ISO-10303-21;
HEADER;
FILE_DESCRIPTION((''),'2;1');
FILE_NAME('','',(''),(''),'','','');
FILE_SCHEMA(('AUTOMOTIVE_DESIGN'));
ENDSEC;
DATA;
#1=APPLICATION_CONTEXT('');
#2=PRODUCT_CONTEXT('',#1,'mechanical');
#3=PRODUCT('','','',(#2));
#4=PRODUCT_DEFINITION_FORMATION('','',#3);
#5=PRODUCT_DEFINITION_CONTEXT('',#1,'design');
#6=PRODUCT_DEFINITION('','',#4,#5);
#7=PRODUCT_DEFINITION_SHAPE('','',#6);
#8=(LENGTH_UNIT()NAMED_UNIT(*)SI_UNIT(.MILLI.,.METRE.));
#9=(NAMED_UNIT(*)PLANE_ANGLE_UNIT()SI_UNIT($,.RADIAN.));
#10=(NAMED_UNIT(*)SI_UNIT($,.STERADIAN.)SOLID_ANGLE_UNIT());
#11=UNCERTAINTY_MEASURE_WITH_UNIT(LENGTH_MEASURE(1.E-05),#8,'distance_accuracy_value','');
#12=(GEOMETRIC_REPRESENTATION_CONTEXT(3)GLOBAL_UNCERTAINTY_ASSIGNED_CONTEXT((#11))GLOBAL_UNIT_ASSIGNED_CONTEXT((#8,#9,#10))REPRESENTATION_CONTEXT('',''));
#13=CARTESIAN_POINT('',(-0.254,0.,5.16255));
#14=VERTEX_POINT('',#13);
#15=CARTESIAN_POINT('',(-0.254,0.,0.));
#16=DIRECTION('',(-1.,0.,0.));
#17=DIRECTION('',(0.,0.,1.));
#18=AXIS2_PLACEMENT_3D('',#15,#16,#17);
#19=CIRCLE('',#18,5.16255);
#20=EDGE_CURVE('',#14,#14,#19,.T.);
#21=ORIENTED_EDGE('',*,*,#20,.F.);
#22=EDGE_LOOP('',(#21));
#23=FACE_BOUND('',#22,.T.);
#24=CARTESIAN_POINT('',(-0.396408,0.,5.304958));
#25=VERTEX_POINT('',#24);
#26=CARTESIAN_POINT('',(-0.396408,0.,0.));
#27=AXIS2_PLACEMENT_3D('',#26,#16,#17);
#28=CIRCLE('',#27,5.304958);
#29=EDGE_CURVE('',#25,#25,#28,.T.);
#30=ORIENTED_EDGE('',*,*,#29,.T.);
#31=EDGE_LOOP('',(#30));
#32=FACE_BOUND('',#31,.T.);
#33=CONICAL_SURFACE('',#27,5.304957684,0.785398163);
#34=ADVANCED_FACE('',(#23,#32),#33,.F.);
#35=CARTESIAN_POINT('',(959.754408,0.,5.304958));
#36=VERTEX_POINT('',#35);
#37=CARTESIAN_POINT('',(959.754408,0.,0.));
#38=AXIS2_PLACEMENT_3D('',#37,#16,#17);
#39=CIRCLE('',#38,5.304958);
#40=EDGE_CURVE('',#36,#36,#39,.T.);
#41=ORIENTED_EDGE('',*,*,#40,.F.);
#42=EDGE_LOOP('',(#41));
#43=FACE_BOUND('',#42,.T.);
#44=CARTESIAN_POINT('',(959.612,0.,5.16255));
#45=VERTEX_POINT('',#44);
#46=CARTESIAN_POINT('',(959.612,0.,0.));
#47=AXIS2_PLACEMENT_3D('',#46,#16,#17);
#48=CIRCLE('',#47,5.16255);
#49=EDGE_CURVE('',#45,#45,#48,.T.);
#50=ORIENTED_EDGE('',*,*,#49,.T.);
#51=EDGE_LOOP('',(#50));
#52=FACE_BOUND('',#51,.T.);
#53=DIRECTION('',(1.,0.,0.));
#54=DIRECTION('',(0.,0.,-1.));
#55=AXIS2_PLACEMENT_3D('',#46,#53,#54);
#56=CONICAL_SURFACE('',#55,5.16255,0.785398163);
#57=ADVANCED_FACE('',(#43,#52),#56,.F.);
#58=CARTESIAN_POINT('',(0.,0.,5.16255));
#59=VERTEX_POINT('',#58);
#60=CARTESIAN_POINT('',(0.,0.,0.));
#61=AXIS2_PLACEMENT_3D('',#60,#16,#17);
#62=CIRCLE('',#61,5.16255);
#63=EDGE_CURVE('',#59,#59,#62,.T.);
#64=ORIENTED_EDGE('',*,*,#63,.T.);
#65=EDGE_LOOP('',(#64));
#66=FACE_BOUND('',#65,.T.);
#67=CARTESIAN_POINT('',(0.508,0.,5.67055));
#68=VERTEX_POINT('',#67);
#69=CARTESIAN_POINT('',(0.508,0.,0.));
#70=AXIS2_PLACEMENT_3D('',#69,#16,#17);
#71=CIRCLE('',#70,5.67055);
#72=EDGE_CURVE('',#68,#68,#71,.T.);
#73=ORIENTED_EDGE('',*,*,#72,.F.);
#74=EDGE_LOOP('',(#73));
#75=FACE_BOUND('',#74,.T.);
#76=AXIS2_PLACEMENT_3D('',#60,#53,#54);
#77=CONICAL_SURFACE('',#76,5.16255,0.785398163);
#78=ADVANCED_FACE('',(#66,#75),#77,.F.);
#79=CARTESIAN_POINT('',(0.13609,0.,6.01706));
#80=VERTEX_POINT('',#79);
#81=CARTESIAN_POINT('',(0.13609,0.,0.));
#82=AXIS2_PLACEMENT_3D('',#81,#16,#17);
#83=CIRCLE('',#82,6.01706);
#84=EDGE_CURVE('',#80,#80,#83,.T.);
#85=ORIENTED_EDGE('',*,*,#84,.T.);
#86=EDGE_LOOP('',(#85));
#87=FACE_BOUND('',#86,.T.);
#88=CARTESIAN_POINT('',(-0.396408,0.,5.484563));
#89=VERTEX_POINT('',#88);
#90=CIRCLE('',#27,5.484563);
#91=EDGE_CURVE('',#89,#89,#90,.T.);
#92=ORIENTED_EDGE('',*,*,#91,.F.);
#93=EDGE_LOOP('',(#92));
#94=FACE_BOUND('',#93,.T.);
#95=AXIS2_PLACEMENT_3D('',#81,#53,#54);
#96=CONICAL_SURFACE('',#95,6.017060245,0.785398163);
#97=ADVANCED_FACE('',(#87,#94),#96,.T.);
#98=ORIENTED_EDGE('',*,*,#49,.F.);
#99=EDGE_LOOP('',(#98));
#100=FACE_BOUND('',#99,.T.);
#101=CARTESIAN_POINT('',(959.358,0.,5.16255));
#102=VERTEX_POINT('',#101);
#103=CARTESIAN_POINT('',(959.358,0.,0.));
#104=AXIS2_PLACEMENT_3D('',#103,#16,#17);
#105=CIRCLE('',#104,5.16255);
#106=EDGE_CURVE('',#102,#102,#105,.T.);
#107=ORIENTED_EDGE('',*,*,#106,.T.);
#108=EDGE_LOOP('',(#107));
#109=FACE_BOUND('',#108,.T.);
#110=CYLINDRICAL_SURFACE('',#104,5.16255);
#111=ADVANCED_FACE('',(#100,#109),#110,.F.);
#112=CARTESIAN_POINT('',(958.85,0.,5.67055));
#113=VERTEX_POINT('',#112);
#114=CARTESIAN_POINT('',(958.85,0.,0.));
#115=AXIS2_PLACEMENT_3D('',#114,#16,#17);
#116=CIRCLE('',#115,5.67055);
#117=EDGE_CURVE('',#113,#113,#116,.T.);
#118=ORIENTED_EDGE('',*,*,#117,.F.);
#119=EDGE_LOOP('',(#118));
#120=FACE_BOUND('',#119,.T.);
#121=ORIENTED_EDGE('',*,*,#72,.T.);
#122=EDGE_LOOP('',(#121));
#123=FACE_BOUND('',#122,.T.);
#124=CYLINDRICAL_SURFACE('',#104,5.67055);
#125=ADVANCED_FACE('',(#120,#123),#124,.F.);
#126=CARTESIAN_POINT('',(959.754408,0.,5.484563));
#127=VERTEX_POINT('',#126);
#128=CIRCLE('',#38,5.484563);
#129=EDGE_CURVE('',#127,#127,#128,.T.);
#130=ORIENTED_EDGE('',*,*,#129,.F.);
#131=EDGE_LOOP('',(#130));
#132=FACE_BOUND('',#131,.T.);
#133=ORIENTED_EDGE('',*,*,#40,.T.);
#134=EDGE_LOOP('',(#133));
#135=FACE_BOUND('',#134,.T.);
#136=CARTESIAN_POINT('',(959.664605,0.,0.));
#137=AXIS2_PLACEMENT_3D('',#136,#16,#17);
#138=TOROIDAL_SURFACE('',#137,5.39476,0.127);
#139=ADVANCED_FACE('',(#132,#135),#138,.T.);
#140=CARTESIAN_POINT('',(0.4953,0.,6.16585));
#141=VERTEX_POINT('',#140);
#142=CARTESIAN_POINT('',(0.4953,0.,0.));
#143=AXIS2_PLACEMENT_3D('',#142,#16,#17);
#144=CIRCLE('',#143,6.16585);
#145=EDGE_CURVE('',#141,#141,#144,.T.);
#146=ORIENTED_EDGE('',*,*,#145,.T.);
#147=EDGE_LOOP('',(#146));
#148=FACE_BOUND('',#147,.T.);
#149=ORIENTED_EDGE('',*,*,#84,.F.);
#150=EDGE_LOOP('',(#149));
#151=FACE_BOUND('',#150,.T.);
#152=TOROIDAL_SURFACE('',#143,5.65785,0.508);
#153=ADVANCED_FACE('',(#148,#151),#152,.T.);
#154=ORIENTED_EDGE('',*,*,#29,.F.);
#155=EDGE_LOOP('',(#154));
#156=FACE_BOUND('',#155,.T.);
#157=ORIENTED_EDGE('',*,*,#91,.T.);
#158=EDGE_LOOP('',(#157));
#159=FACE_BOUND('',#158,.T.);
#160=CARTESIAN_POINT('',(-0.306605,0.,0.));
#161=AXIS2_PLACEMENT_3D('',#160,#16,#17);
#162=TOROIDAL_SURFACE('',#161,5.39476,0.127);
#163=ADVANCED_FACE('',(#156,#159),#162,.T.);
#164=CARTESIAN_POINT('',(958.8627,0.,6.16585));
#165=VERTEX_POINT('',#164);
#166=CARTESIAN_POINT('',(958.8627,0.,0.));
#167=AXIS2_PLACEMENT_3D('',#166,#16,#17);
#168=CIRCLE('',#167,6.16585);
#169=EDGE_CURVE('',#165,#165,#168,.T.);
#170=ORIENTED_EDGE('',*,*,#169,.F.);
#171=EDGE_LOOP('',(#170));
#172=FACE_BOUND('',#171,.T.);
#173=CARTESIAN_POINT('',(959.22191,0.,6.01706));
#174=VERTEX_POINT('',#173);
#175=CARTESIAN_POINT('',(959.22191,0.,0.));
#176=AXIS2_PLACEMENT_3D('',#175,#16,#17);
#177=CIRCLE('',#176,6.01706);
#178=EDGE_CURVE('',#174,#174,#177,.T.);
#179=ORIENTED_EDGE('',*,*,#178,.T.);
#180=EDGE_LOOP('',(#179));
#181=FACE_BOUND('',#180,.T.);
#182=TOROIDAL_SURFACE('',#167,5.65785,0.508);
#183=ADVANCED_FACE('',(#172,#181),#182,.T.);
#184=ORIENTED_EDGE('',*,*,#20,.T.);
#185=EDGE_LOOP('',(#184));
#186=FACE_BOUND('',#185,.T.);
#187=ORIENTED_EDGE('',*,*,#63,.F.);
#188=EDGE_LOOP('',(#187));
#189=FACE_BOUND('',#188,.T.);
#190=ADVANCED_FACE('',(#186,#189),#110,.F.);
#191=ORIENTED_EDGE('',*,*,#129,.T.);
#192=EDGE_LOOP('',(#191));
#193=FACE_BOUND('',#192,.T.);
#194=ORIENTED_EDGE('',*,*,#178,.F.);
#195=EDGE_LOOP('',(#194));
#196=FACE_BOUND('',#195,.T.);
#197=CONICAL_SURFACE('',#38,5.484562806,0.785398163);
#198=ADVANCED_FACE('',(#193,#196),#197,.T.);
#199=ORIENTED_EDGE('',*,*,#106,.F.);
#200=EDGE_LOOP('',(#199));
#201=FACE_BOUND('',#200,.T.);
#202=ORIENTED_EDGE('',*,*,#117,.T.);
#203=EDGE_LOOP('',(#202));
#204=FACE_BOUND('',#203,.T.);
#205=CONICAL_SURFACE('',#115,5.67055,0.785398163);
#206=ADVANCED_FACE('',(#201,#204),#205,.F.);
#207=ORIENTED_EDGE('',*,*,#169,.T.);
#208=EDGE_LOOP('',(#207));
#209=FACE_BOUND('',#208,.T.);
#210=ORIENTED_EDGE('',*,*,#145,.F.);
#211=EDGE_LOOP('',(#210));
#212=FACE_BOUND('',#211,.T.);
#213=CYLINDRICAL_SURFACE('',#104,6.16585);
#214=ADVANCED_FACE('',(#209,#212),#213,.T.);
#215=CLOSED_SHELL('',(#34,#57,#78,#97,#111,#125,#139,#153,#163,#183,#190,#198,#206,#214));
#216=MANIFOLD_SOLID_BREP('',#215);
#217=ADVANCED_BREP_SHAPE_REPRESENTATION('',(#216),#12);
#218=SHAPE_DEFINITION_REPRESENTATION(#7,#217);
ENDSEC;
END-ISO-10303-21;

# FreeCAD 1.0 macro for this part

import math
import FreeCAD as App
import Part
import Sketcher
from FreeCAD import Vector
Q = App.Units.Quantity

doc = App.newDocument("Part")
body = doc.addObject("PartDesign::Body", "Body")

sketch1 = body.newObject("Sketcher::SketchObject", "Sketch")
sketch1.AttachmentSupport = (doc.getObject("XY_Plane"), [""])
sketch1.MapMode = "FlatFace"
sketch1.addGeometry(Part.LineSegment(Vector(-0.4, 5.3, 0), Vector(-0.25, 5.16, 0)), False)
sketch1.addGeometry(Part.LineSegment(Vector(-0.25, 5.16, 0), Vector(0, 5.16, 0)), False)
sketch1.addGeometry(Part.LineSegment(Vector(0, 5.16, 0), Vector(0.51, 5.67, 0)), False)
sketch1.addGeometry(Part.LineSegment(Vector(0.51, 5.67, 0), Vector(958.85, 5.67, 0)), False)
sketch1.addGeometry(Part.LineSegment(Vector(958.85, 5.67, 0), Vector(959.36, 5.16, 0)), False)
sketch1.addGeometry(Part.LineSegment(Vector(959.36, 5.16, 0), Vector(959.61, 5.16, 0)), False)
sketch1.addGeometry(Part.LineSegment(Vector(959.61, 5.16, 0), Vector(959.75, 5.3, 0)), False)
sketch1.addGeometry(Part.ArcOfCircle(Part.Circle(Vector(959.66, 5.39, 0), Vector(0, 0, 1), 0.13), math.radians(-45), math.radians(45)), False)
sketch1.addGeometry(Part.LineSegment(Vector(959.75, 5.48, 0), Vector(959.22, 6.02, 0)), False)
sketch1.addGeometry(Part.ArcOfCircle(Part.Circle(Vector(958.86, 5.66, 0), Vector(0, 0, 1), 0.51), math.radians(45), math.radians(90)), False)
sketch1.addGeometry(Part.LineSegment(Vector(958.86, 6.17, 0), Vector(0.5, 6.17, 0)), False)
sketch1.addGeometry(Part.ArcOfCircle(Part.Circle(Vector(0.5, 5.66, 0), Vector(0, 0, 1), 0.51), math.radians(90), math.radians(135)), False)
sketch1.addGeometry(Part.LineSegment(Vector(0.14, 6.02, 0), Vector(-0.4, 5.48, 0)), False)
sketch1.addGeometry(Part.ArcOfCircle(Part.Circle(Vector(-0.31, 5.39, 0), Vector(0, 0, 1), 0.13), math.radians(135), math.radians(225)), False)
sketch1.addConstraint(Sketcher.Constraint("Coincident", 0, 2, 1, 1))
sketch1.addConstraint(Sketcher.Constraint("Coincident", 1, 2, 2, 1))
sketch1.addConstraint(Sketcher.Constraint("Coincident", 2, 2, 3, 1))
sketch1.addConstraint(Sketcher.Constraint("Coincident", 3, 2, 4, 1))
sketch1.addConstraint(Sketcher.Constraint("Coincident", 4, 2, 5, 1))
sketch1.addConstraint(Sketcher.Constraint("Coincident", 5, 2, 6, 1))
sketch1.addConstraint(Sketcher.Constraint("Tangent", 6, 2, 7, 1))
sketch1.addConstraint(Sketcher.Constraint("Tangent", 7, 2, 8, 1))
sketch1.addConstraint(Sketcher.Constraint("Tangent", 8, 2, 9, 1))
sketch1.addConstraint(Sketcher.Constraint("Tangent", 9, 2, 10, 1))
sketch1.addConstraint(Sketcher.Constraint("Tangent", 10, 2, 11, 1))
sketch1.addConstraint(Sketcher.Constraint("Tangent", 11, 2, 12, 1))
sketch1.addConstraint(Sketcher.Constraint("Tangent", 12, 2, 13, 1))
sketch1.addConstraint(Sketcher.Constraint("Tangent", 13, 2, 0, 1))
sketch1.addConstraint(Sketcher.Constraint("Horizontal", 1))
sketch1.addConstraint(Sketcher.Constraint("Horizontal", 3))
sketch1.addConstraint(Sketcher.Constraint("Horizontal", 5))
sketch1.addConstraint(Sketcher.Constraint("Horizontal", 10))
sketch1.addConstraint(Sketcher.Constraint("Equal", 9, 11))
sketch1.addConstraint(Sketcher.Constraint("Equal", 7, 13))
sketch1.addConstraint(Sketcher.Constraint("PointOnObject", 1, 2, -2))
sketch1.addConstraint(Sketcher.Constraint("Perpendicular", 0, 2))
sketch1.addConstraint(Sketcher.Constraint("Perpendicular", 2, 4))
sketch1.addConstraint(Sketcher.Constraint("Perpendicular", 4, 6))
sketch1.addConstraint(Sketcher.Constraint("Perpendicular", 6, 8))
sketch1.addConstraint(Sketcher.Constraint("Perpendicular", 8, 12))
sketch1.addConstraint(Sketcher.Constraint("Horizontal", 7, 3, 13, 3))
sketch1.addConstraint(Sketcher.Constraint("Horizontal", 1, 2, 4, 2))
sketch1.addConstraint(Sketcher.Constraint("Horizontal", 8, 2, 11, 2))
sketch1.addConstraint(Sketcher.Constraint("Equal", 1, 5))
sketch1.addConstraint(Sketcher.Constraint("Radius", 9, Q("0.02 in")))
sketch1.addConstraint(Sketcher.Constraint("Radius", 7, Q("0.005 in")))
sketch1.addConstraint(Sketcher.Constraint("DistanceX", 1, 1, 1, 2, Q("0.01 in")))
sketch1.addConstraint(Sketcher.Constraint("DistanceX", 3, 1, 3, 2, Q("37.73 in")))
sketch1.addConstraint(Sketcher.Constraint("DistanceX", 10, 2, 10, 1, Q("37.731 in")))
sketch1.addConstraint(Sketcher.Constraint("DistanceX", -1, 1, 2, 2, Q("0.02 in")))
sketch1.addConstraint(Sketcher.Constraint("DistanceY", 0, 2, 11, 3, Q("0.0195 in")))
sketch1.addConstraint(Sketcher.Constraint("DistanceY", -1, 1, 7, 3, 5.39476))
revolution = body.newObject("PartDesign::Revolution", "Revolution")
revolution.Profile = sketch1
revolution.ReferenceAxis = (sketch1, ["H_Axis"])
revolution.Angle = 360

doc.recompute()
